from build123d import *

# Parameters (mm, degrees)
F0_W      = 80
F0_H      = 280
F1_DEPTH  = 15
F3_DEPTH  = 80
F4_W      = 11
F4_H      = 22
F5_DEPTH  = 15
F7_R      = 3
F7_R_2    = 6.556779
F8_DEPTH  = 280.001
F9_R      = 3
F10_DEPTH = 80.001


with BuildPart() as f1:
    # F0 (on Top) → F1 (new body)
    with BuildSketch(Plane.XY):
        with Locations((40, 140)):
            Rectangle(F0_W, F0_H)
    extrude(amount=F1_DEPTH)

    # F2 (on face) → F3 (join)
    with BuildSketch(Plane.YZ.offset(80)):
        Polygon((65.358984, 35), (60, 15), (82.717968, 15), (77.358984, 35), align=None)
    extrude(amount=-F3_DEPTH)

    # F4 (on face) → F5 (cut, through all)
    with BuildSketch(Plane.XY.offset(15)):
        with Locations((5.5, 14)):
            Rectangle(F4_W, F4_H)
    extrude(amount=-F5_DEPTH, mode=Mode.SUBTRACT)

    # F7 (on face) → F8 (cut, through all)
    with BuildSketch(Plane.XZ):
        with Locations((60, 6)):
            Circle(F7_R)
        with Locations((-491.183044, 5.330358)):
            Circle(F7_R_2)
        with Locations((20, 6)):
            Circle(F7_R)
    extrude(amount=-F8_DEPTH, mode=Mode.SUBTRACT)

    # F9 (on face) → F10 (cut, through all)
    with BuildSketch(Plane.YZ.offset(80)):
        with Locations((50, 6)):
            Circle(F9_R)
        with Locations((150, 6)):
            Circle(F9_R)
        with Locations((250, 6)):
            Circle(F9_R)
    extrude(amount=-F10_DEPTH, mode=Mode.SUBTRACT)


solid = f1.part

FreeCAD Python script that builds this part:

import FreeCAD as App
import Part
import Sketcher
Q = App.Units.Quantity


def add_polygon(sketch, points):
    """Adds a closed chain of lines whose ends are joined by coincident constraints."""
    first, n = sketch.GeometryCount, len(points)
    for a, b in zip(points, points[1:] + points[:1]):
        sketch.addGeometry(Part.LineSegment(App.Vector(*a, 0), App.Vector(*b, 0)), False)
    for i in range(n):
        sketch.addConstraint(Sketcher.Constraint("Coincident", first + i, 2, first + (i + 1) % n, 1))

doc = App.newDocument("Part")
body = doc.addObject("PartDesign::Body", "Body")

sketch1 = body.newObject("Sketcher::SketchObject", "Sketch")
sketch1.AttachmentSupport = (doc.getObject("XY_Plane"), [""])
sketch1.MapMode = "FlatFace"
add_polygon(sketch1, [(0, 280), (0, 0), (80, 0), (80, 280)])
sketch1.addConstraint([
    Sketcher.Constraint("Vertical", 0),
    Sketcher.Constraint("Horizontal", 1),
    Sketcher.Constraint("Vertical", 2),
    Sketcher.Constraint("Horizontal", 3),
    Sketcher.Constraint("Coincident", 0, 2, -1, 1),
    Sketcher.Constraint("DistanceX", 1, 1, 1, 2, Q("80 mm")),
    Sketcher.Constraint("DistanceY", 0, 2, 0, 1, Q("280 mm")),
])
pad1 = body.newObject("PartDesign::Pad", "Pad")
pad1.Profile = sketch1
pad1.Length = 15

sketch2 = body.newObject("Sketcher::SketchObject", "Sketch001")
sketch2.AttachmentSupport = (doc.getObject("YZ_Plane"), [""])
sketch2.MapMode = "FlatFace"
sketch2.AttachmentOffset = App.Placement(App.Vector(0, 0, 80), App.Rotation())
add_polygon(sketch2, [(65, 35), (60, 15), (83, 15), (77, 35)])
sketch2.addConstraint([
    Sketcher.Constraint("Horizontal", 1),
    Sketcher.Constraint("Horizontal", 3),
    Sketcher.Constraint("Equal", 0, 2),
    Sketcher.Constraint("DistanceX", 3, 2, 3, 1, Q("12 mm")),
    Sketcher.Constraint("Angle", 0, Q("-105 deg")),
    Sketcher.Constraint("DistanceX", -1, 1, 0, 2, Q("60 mm")),
    Sketcher.Constraint("DistanceY", -1, 1, 0, 2, Q("15 mm")),
    Sketcher.Constraint("DistanceY", -1, 1, 2, 2, Q("35 mm")),
])
pad2 = body.newObject("PartDesign::Pad", "Pad001")
pad2.Profile = sketch2
pad2.Length = 80
pad2.Reversed = True

sketch3 = body.newObject("Sketcher::SketchObject", "Sketch002")
sketch3.AttachmentSupport = (doc.getObject("XY_Plane"), [""])
sketch3.MapMode = "FlatFace"
sketch3.AttachmentOffset = App.Placement(App.Vector(0, 0, 15), App.Rotation())
add_polygon(sketch3, [(0, 25), (0, 3), (11, 3), (11, 25)])
sketch3.addConstraint([
    Sketcher.Constraint("Vertical", 0),
    Sketcher.Constraint("Horizontal", 1),
    Sketcher.Constraint("Vertical", 2),
    Sketcher.Constraint("Horizontal", 3),
    Sketcher.Constraint("PointOnObject", 0, 2, -2),
    Sketcher.Constraint("DistanceX", 1, 1, 1, 2, Q("11 mm")),
    Sketcher.Constraint("DistanceY", 0, 2, 0, 1, Q("22 mm")),
    Sketcher.Constraint("DistanceY", -1, 1, 0, 2, Q("3 mm")),
])
pocket1 = body.newObject("PartDesign::Pocket", "Pocket")
pocket1.Profile = sketch3
pocket1.Type = "ThroughAll"

sketch4 = body.newObject("Sketcher::SketchObject", "Sketch003")
sketch4.AttachmentSupport = (doc.getObject("XZ_Plane"), [""])
sketch4.MapMode = "FlatFace"
sketch4.addGeometry([
    Part.Circle(App.Vector(60, 6, 0), App.Vector(0, 0, 1), 3),
    Part.Circle(App.Vector(-491.2, 5.3, 0), App.Vector(0, 0, 1), 6.6),
    Part.Circle(App.Vector(20, 6, 0), App.Vector(0, 0, 1), 3),
], False)
sketch4.addConstraint([
    Sketcher.Constraint("Equal", 0, 2),
    Sketcher.Constraint("Horizontal", 0, 3, 2, 3),
    Sketcher.Constraint("Diameter", 0, Q("6 mm")),
    Sketcher.Constraint("DistanceX", -1, 1, 0, 3, Q("60 mm")),
    Sketcher.Constraint("DistanceY", -1, 1, 0, 3, Q("6 mm")),
    Sketcher.Constraint("DistanceX", -1, 1, 2, 3, Q("20 mm")),
    Sketcher.Constraint("Diameter", 1, Q("13.113558 mm")),
    Sketcher.Constraint("DistanceY", -1, 1, 1, 3, Q("5.330358 mm")),
    Sketcher.Constraint("DistanceX", 1, 3, -1, 1, Q("491.183044 mm")),
])
pocket2 = body.newObject("PartDesign::Pocket", "Pocket001")
pocket2.Profile = sketch4
pocket2.Type = "ThroughAll"

sketch5 = body.newObject("Sketcher::SketchObject", "Sketch004")
sketch5.AttachmentSupport = (doc.getObject("YZ_Plane"), [""])
sketch5.MapMode = "FlatFace"
sketch5.AttachmentOffset = App.Placement(App.Vector(0, 0, 80), App.Rotation())
sketch5.addGeometry([
    Part.Circle(App.Vector(50, 6, 0), App.Vector(0, 0, 1), 3),
    Part.Circle(App.Vector(150, 6, 0), App.Vector(0, 0, 1), 3),
    Part.Circle(App.Vector(250, 6, 0), App.Vector(0, 0, 1), 3),
], False)
sketch5.addConstraint([
    Sketcher.Constraint("Equal", 0, 1),
    Sketcher.Constraint("Equal", 1, 2),
    Sketcher.Constraint("Horizontal", 0, 3, 1, 3),
    Sketcher.Constraint("Horizontal", 1, 3, 2, 3),
    Sketcher.Constraint("Diameter", 0, Q("6 mm")),
    Sketcher.Constraint("DistanceX", -1, 1, 0, 3, Q("50 mm")),
    Sketcher.Constraint("DistanceY", -1, 1, 0, 3, Q("6 mm")),
    Sketcher.Constraint("DistanceX", -1, 1, 1, 3, Q("150 mm")),
    Sketcher.Constraint("DistanceX", -1, 1, 2, 3, Q("250 mm")),
])
pocket3 = body.newObject("PartDesign::Pocket", "Pocket002")
pocket3.Profile = sketch5
pocket3.Type = "ThroughAll"

doc.recompute()
